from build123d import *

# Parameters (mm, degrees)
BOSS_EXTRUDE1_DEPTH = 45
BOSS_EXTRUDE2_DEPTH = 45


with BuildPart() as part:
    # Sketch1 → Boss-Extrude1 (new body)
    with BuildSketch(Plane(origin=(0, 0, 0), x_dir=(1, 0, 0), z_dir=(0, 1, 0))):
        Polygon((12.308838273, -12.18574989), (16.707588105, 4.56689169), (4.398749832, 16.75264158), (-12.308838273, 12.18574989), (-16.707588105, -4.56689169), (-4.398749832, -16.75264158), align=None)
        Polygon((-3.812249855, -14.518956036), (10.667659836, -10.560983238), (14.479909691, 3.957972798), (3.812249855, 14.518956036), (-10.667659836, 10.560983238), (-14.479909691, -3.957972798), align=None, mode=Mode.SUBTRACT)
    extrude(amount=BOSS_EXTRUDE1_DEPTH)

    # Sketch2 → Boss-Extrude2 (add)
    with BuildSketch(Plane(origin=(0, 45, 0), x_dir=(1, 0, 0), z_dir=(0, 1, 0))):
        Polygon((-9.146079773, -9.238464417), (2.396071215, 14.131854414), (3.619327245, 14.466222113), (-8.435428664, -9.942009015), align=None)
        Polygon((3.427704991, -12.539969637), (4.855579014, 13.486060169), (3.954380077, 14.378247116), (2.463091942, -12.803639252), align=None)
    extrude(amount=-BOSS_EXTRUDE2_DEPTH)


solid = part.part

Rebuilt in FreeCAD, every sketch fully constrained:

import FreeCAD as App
import Part
import Sketcher
Q = App.Units.Quantity

doc = App.newDocument("Part")
body = doc.addObject("PartDesign::Body", "Body")

# Sketch on XZ plane
sketch1 = body.newObject("Sketcher::SketchObject", "Sketch")
sketch1.AttachmentSupport = (doc.getObject("XZ_Plane"), [""])
sketch1.MapMode = "FlatFace"
sketch1.addGeometry([
    Part.LineSegment(App.Vector(12.308838, 12.18575, 0), App.Vector(16.707588, -4.566892, 0)),  # 0
    Part.LineSegment(App.Vector(16.707588, -4.566892, 0), App.Vector(4.39875, -16.752642, 0)),  # 1
    Part.LineSegment(App.Vector(4.39875, -16.752642, 0), App.Vector(-12.308838, -12.18575, 0)),  # 2
    Part.LineSegment(App.Vector(-12.308838, -12.18575, 0), App.Vector(-16.707588, 4.566892, 0)),  # 3
    Part.LineSegment(App.Vector(-16.707588, 4.566892, 0), App.Vector(-4.39875, 16.752642, 0)),  # 4
    Part.LineSegment(App.Vector(-4.39875, 16.752642, 0), App.Vector(12.308838, 12.18575, 0)),  # 5
    Part.LineSegment(App.Vector(10.66766, 10.560983, 0), App.Vector(-3.81225, 14.518956, 0)),  # 6
    Part.LineSegment(App.Vector(-3.81225, 14.518956, 0), App.Vector(-14.47991, 3.957973, 0)),  # 7
    Part.LineSegment(App.Vector(-14.47991, 3.957973, 0), App.Vector(-10.66766, -10.560983, 0)),  # 8
    Part.LineSegment(App.Vector(-10.66766, -10.560983, 0), App.Vector(3.81225, -14.518956, 0)),  # 9
    Part.LineSegment(App.Vector(3.81225, -14.518956, 0), App.Vector(14.47991, -3.957973, 0)),  # 10
    Part.LineSegment(App.Vector(14.47991, -3.957973, 0), App.Vector(10.66766, 10.560983, 0)),  # 11
], False)
sketch1.addConstraint([
    Sketcher.Constraint("Coincident", 0, 2, 1, 1),
    Sketcher.Constraint("Coincident", 1, 2, 2, 1),
    Sketcher.Constraint("Coincident", 2, 2, 3, 1),
    Sketcher.Constraint("Coincident", 3, 2, 4, 1),
    Sketcher.Constraint("Coincident", 4, 2, 5, 1),
    Sketcher.Constraint("Coincident", 5, 2, 0, 1),
    Sketcher.Constraint("Coincident", 6, 2, 7, 1),
    Sketcher.Constraint("Coincident", 7, 2, 8, 1),
    Sketcher.Constraint("Coincident", 8, 2, 9, 1),
    Sketcher.Constraint("Coincident", 9, 2, 10, 1),
    Sketcher.Constraint("Coincident", 10, 2, 11, 1),
    Sketcher.Constraint("Coincident", 11, 2, 6, 1),
    Sketcher.Constraint("Symmetric", 0, 2, 3, 2, -1, 1),
    Sketcher.Constraint("Symmetric", 1, 2, 4, 2, -1, 1),
    Sketcher.Constraint("Symmetric", 2, 2, 5, 2, -1, 1),
    Sketcher.Constraint("Symmetric", 6, 2, 9, 2, -1, 1),
    Sketcher.Constraint("Symmetric", 7, 2, 10, 2, -1, 1),
    Sketcher.Constraint("Symmetric", 8, 2, 11, 2, -1, 1),
    Sketcher.Constraint("Parallel", 5, 6),
    Sketcher.Constraint("Parallel", 4, 7),
    Sketcher.Constraint("Parallel", 3, 8),
    Sketcher.Constraint("Equal", 0, 1),
    Sketcher.Constraint("Equal", 1, 2),
    Sketcher.Constraint("Equal", 6, 7),
    Sketcher.Constraint("Equal", 7, 8),
    Sketcher.Constraint("DistanceX", 4, 2, 1, 2, Q("8.7975 mm")),
    Sketcher.Constraint("DistanceY", 2, 2, 5, 2, Q("24.3715 mm")),
    Sketcher.Constraint("DistanceX", 4, 2, 6, 2, Q("0.5865 mm")),
    Sketcher.Constraint("Distance", 0, Q("17.320508 mm")),
    Sketcher.Constraint("DistanceX", -1, 1, 0, 2, Q("16.707588 mm")),
])
pad1 = body.newObject("PartDesign::Pad", "Pad")
pad1.Profile = sketch1
pad1.Length = 45
pad1.Reversed = True

# Sketch on XZ plane
sketch2 = body.newObject("Sketcher::SketchObject", "Sketch001")
sketch2.AttachmentSupport = (doc.getObject("XZ_Plane"), [""])
sketch2.MapMode = "FlatFace"
sketch2.AttachmentOffset = App.Placement(App.Vector(0, 0, -45), App.Rotation())
sketch2.addGeometry([
    Part.LineSegment(App.Vector(2.396071, -14.131854, 0), App.Vector(-9.14608, 9.238464, 0)),  # 0
    Part.LineSegment(App.Vector(-9.14608, 9.238464, 0), App.Vector(-8.435429, 9.942009, 0)),  # 1
    Part.LineSegment(App.Vector(-8.435429, 9.942009, 0), App.Vector(3.619327, -14.466222, 0)),  # 2
    Part.LineSegment(App.Vector(3.619327, -14.466222, 0), App.Vector(2.396071, -14.131854, 0)),  # 3
    Part.LineSegment(App.Vector(3.427705, 12.53997, 0), App.Vector(4.855579, -13.48606, 0)),  # 4
    Part.LineSegment(App.Vector(4.855579, -13.48606, 0), App.Vector(3.95438, -14.378247, 0)),  # 5
    Part.LineSegment(App.Vector(3.95438, -14.378247, 0), App.Vector(2.463092, 12.803639, 0)),  # 6
    Part.LineSegment(App.Vector(2.463092, 12.803639, 0), App.Vector(3.427705, 12.53997, 0)),  # 7
], False)
sketch2.addConstraint([
    Sketcher.Constraint("Coincident", 0, 2, 1, 1),
    Sketcher.Constraint("Coincident", 1, 2, 2, 1),
    Sketcher.Constraint("Coincident", 2, 2, 3, 1),
    Sketcher.Constraint("Coincident", 3, 2, 0, 1),
    Sketcher.Constraint("Coincident", 4, 2, 5, 1),
    Sketcher.Constraint("Coincident", 5, 2, 6, 1),
    Sketcher.Constraint("Coincident", 6, 2, 7, 1),
    Sketcher.Constraint("Coincident", 7, 2, 4, 1),
    Sketcher.Constraint("Parallel", 0, 2),
    Sketcher.Constraint("Parallel", 1, 5),
    Sketcher.Constraint("Parallel", 4, 6),
    Sketcher.Constraint("Parallel", 3, 7),
    Sketcher.Constraint("Equal", 0, 4),
    Sketcher.Constraint("Equal", 3, 5),
    Sketcher.Constraint("Equal", 2, 6),
    Sketcher.Constraint("Distance", 1, Q("1 mm")),
    Sketcher.Constraint("DistanceX", 1, 2, 3, 2, Q("10.8315 mm")),
    Sketcher.Constraint("DistanceX", 5, 2, 4, 2, Q("0.901199 mm")),
    Sketcher.Constraint("DistanceY", 4, 2, 6, 2, Q("26.289699 mm")),
    Sketcher.Constraint("Distance", 0, Q("26.065169 mm")),
    Sketcher.Constraint("DistanceX", 0, 2, -1, 1, Q("9.14608 mm")),
    Sketcher.Constraint("DistanceY", -1, 1, 1, 2, Q("9.942009 mm")),
    Sketcher.Constraint("DistanceX", -1, 1, 4, 2, Q("4.855579 mm")),
    Sketcher.Constraint("DistanceY", 4, 2, -1, 1, Q("13.48606 mm")),
])
pad2 = body.newObject("PartDesign::Pad", "Pad001")
pad2.Profile = sketch2
pad2.Length = 45

doc.recompute()
